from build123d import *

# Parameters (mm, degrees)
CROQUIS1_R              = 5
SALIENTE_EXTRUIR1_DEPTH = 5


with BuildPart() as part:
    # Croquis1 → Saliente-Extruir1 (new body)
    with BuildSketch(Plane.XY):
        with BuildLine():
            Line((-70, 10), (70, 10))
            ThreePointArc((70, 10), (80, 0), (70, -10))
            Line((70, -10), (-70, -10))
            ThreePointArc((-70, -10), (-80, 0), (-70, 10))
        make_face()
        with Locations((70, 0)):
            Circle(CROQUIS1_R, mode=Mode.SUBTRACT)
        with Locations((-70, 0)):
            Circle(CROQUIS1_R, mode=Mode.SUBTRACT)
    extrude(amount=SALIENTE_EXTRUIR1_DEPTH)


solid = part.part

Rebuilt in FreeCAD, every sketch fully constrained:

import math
import FreeCAD as App
import Part
import Sketcher
Q = App.Units.Quantity

doc = App.newDocument("Part")
params = doc.addObject("Spreadsheet::Sheet", "Params")
for row, (alias, value) in enumerate([
    ("sketch1_diameter", "10 mm"),
    ("sketch1_radius", "10 mm"),
    ("sketch1_width", "140 mm"),
    ("pad1_length", "5 mm"),
], start=1):
    params.set(f"A{row}", alias)
    params.set(f"B{row}", "=" + value)
    params.setAlias(f"B{row}", alias)

body = doc.addObject("PartDesign::Body", "Body")

# Sketch on XY plane
sketch1 = body.newObject("Sketcher::SketchObject", "Sketch")
sketch1.AttachmentSupport = (doc.getObject("XY_Plane"), [""])
sketch1.MapMode = "FlatFace"
sketch1.addGeometry([
    Part.LineSegment(App.Vector(70, 10, 0), App.Vector(-70, 10, 0)),  # 0
    Part.ArcOfCircle(Part.Circle(App.Vector(-70, 0, 0), App.Vector(0, 0, 1), 10), math.radians(90), math.radians(270)),  # 1
    Part.LineSegment(App.Vector(-70, -10, 0), App.Vector(70, -10, 0)),  # 2
    Part.ArcOfCircle(Part.Circle(App.Vector(70, 0, 0), App.Vector(0, 0, 1), 10), math.radians(-90), math.radians(90)),  # 3
    Part.Circle(App.Vector(70, 0, 0), App.Vector(0, 0, 1), 5),  # 4
    Part.Circle(App.Vector(-70, 0, 0), App.Vector(0, 0, 1), 5),  # 5
], False)
sketch1.addConstraint([
    Sketcher.Constraint("Tangent", 0, 2, 1, 1),
    Sketcher.Constraint("Tangent", 1, 2, 2, 1),
    Sketcher.Constraint("Tangent", 2, 2, 3, 1),
    Sketcher.Constraint("Tangent", 3, 2, 0, 1),
    Sketcher.Constraint("Horizontal", 0),
    Sketcher.Constraint("Horizontal", 2),
    Sketcher.Constraint("Coincident", 4, 3, 3, 3),
    Sketcher.Constraint("Coincident", 5, 3, 1, 3),
    Sketcher.Constraint("Equal", 4, 5),
    Sketcher.Constraint("Symmetric", 1, 3, 3, 3, -1, 1),
    Sketcher.Constraint("Diameter", 4, Q("10 mm")),
    Sketcher.Constraint("Radius", 1, Q("10 mm")),
    Sketcher.Constraint("DistanceX", 0, 2, 0, 1, Q("140 mm")),
])
sketch1.setExpression("Constraints[10]", "Params.sketch1_diameter")
sketch1.setExpression("Constraints[11]", "Params.sketch1_radius")
sketch1.setExpression("Constraints[12]", "Params.sketch1_width")
pad1 = body.newObject("PartDesign::Pad", "Pad")
pad1.Profile = sketch1
pad1.setExpression("Length", "Params.pad1_length")

doc.recompute()
